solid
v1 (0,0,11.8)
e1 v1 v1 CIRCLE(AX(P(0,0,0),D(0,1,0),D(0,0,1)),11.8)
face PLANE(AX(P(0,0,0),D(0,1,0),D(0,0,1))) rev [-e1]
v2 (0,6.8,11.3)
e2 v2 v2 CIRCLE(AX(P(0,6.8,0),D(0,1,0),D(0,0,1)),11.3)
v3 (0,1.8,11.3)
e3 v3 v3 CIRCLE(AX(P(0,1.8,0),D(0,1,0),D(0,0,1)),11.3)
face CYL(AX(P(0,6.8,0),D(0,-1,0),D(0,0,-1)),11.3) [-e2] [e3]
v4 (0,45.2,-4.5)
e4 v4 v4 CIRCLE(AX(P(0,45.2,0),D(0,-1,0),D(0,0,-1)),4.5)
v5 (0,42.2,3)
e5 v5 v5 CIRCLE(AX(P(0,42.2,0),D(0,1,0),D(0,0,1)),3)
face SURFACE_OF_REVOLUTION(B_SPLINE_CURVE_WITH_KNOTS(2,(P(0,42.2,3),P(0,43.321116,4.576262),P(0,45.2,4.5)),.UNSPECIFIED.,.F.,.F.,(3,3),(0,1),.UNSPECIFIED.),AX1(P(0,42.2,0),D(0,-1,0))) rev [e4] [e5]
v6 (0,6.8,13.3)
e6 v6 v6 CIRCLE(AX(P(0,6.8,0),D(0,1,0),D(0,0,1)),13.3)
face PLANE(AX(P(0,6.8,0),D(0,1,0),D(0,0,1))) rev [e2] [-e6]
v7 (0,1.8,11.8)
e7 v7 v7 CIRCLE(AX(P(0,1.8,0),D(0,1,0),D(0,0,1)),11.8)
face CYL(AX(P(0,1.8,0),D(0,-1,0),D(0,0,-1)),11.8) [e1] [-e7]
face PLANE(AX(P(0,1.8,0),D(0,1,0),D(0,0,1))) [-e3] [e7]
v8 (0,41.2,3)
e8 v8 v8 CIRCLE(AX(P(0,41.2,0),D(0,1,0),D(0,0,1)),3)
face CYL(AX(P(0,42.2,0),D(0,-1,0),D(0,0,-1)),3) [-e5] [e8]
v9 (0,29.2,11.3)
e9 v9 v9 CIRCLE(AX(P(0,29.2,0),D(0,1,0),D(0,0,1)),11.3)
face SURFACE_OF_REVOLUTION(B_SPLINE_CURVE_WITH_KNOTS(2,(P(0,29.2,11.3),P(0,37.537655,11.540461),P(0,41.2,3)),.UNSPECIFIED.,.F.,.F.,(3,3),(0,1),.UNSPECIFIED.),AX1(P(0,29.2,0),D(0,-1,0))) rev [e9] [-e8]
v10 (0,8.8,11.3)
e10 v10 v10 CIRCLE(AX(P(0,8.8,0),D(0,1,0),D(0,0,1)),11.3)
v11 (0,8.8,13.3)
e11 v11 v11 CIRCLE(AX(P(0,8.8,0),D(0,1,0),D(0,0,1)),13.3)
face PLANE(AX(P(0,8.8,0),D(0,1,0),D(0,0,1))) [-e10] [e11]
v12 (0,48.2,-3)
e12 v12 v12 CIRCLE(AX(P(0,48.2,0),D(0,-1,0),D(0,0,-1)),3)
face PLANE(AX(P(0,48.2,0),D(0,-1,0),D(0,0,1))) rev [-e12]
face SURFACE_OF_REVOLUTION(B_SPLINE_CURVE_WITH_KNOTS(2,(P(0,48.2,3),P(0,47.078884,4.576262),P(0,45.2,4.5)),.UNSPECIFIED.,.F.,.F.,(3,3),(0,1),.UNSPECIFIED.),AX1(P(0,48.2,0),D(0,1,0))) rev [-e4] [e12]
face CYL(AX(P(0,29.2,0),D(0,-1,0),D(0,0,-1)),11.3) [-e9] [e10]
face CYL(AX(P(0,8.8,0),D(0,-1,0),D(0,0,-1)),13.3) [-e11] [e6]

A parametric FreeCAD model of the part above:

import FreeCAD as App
import Part
import Sketcher
from FreeCAD import Vector
Q = App.Units.Quantity

doc = App.newDocument("Part")
body = doc.addObject("PartDesign::Body", "Body")

sketch1 = doc.addObject("Sketcher::SketchObject", "Sketch")
body.addObject(sketch1)
sketch1.AttachmentSupport = (doc.XZ_Plane, [""])
sketch1.MapMode = "FlatFace"
sketch1.addGeometry(Part.Circle(Vector(0, 0, 0), Vector(0, 0, 1), 11.8), False)
sketch1.addConstraint([
    Sketcher.Constraint("Coincident", 0, 3, -1, 1),
    Sketcher.Constraint("Diameter", 0, Q("23.6 mm")),
])
pad1 = doc.addObject("PartDesign::Pad", "Pad")
body.addObject(pad1)
pad1.Profile = sketch1
pad1.Length = 1.8
pad1.Reversed = True

sketch2 = doc.addObject("Sketcher::SketchObject", "Sketch001")
body.addObject(sketch2)
sketch2.AttachmentSupport = (doc.XZ_Plane, [""])
sketch2.MapMode = "FlatFace"
sketch2.AttachmentOffset = App.Placement(Vector(0, 0, -1.8), App.Rotation())
sketch2.addGeometry(Part.Circle(Vector(0, 0, 0), Vector(0, 0, 1), 11.3), False)
sketch2.addConstraint([
    Sketcher.Constraint("Coincident", 0, 3, -1, 1),
    Sketcher.Constraint("Diameter", 0, Q("22.6 mm")),
])
pad2 = doc.addObject("PartDesign::Pad", "Pad001")
body.addObject(pad2)
pad2.Profile = sketch2
pad2.Length = 5
pad2.Reversed = True

sketch3 = doc.addObject("Sketcher::SketchObject", "Sketch002")
body.addObject(sketch3)
sketch3.AttachmentSupport = (doc.XZ_Plane, [""])
sketch3.MapMode = "FlatFace"
sketch3.AttachmentOffset = App.Placement(Vector(0, 0, -6.8), App.Rotation())
sketch3.addGeometry(Part.Circle(Vector(0, 0, 0), Vector(0, 0, 1), 13.3), False)
sketch3.addConstraint([
    Sketcher.Constraint("Coincident", 0, 3, -1, 1),
    Sketcher.Constraint("Diameter", 0, Q("26.6 mm")),
])
pad3 = doc.addObject("PartDesign::Pad", "Pad002")
body.addObject(pad3)
pad3.Profile = sketch3
pad3.Length = 2
pad3.Reversed = True

sketch4 = doc.addObject("Sketcher::SketchObject", "Sketch003")
body.addObject(sketch4)
sketch4.AttachmentSupport = (doc.XZ_Plane, [""])
sketch4.MapMode = "FlatFace"
sketch4.AttachmentOffset = App.Placement(Vector(0, 0, -8.8), App.Rotation())
sketch4.addGeometry(Part.Circle(Vector(0, 0, 0), Vector(0, 0, 1), 11.3), False)
sketch4.addConstraint([
    Sketcher.Constraint("Coincident", 0, 3, -1, 1),
    Sketcher.Constraint("Diameter", 0, Q("22.6 mm")),
])
pad4 = doc.addObject("PartDesign::Pad", "Pad003")
body.addObject(pad4)
pad4.Profile = sketch4
pad4.Length = 20.4
pad4.Reversed = True

sketch5 = doc.addObject("Sketcher::SketchObject", "Sketch004")
body.addObject(sketch5)
sketch5.AttachmentSupport = (doc.YZ_Plane, [""])
sketch5.MapMode = "FlatFace"
sketch5.addGeometry([
    Part.BSplineCurve([Vector(34.2, 10.5, 0), Vector(38.747924, 8.718156, 0), Vector(41.2, 3, 0)], [3, 3], [0.330462847, 1], False, 2, [1, 1, 1], False),
    Part.BSplineCurve([Vector(29.2, 11.3, 0), Vector(31.955285, 11.379463, 0), Vector(34.2, 10.5, 0)], [3, 3], [0, 0.330462847], False, 2, [1, 1, 1], False),
    Part.LineSegment(Vector(29.2, 11.3, 0), Vector(29.2, 0, 0)),
    Part.LineSegment(Vector(29.2, 0, 0), Vector(41.2, 0, 0)),
    Part.LineSegment(Vector(41.2, 0, 0), Vector(41.2, 3, 0)),
], False)
sketch5.addConstraint([
    Sketcher.Constraint("Block", 0),
    Sketcher.Constraint("Block", 1),
    Sketcher.Constraint("Coincident", 1, 1, 2, 1),
    Sketcher.Constraint("Coincident", 2, 2, 3, 1),
    Sketcher.Constraint("Coincident", 3, 2, 4, 1),
    Sketcher.Constraint("Coincident", 4, 2, 0, 2),
    Sketcher.Constraint("Vertical", 2),
    Sketcher.Constraint("Horizontal", 3),
    Sketcher.Constraint("Vertical", 4),
    Sketcher.Constraint("PointOnObject", 2, 2, -1),
])
revolution = doc.addObject("PartDesign::Revolution", "Revolution")
body.addObject(revolution)
revolution.Profile = sketch5
revolution.ReferenceAxis = (sketch5, ["H_Axis"])
revolution.Angle = 360

sketch6 = doc.addObject("Sketcher::SketchObject", "Sketch005")
body.addObject(sketch6)
sketch6.AttachmentSupport = (doc.XZ_Plane, [""])
sketch6.MapMode = "FlatFace"
sketch6.AttachmentOffset = App.Placement(Vector(0, 0, -41.2), App.Rotation())
sketch6.addGeometry(Part.Circle(Vector(0, 0, 0), Vector(0, 0, 1), 3), False)
sketch6.addConstraint([
    Sketcher.Constraint("Coincident", 0, 3, -1, 1),
    Sketcher.Constraint("Diameter", 0, Q("6 mm")),
])
pad5 = doc.addObject("PartDesign::Pad", "Pad004")
body.addObject(pad5)
pad5.Profile = sketch6
pad5.Length = 1
pad5.Reversed = True

sketch7 = doc.addObject("Sketcher::SketchObject", "Sketch006")
body.addObject(sketch7)
sketch7.AttachmentSupport = (doc.YZ_Plane, [""])
sketch7.MapMode = "FlatFace"
sketch7.addGeometry([
    Part.LineSegment(Vector(45.2, 0, 0), Vector(45.2, 4.5, 0)),
    Part.BSplineCurve([Vector(43.7, 4.25, 0), Vector(44.37737, 4.53339, 0), Vector(45.2, 4.5, 0)], [3, 3], [0.56217108, 1], False, 2, [1, 1, 1], False),
    Part.BSplineCurve([Vector(42.2, 3, 0), Vector(42.830259, 3.886129, 0), Vector(43.7, 4.25, 0)], [3, 3], [0, 0.56217108], False, 2, [1, 1, 1], False),
    Part.LineSegment(Vector(42.2, 3, 0), Vector(42.2, 0, 0)),
    Part.LineSegment(Vector(42.2, 0, 0), Vector(45.2, 0, 0)),
], False)
sketch7.addConstraint([
    Sketcher.Constraint("Block", 1),
    Sketcher.Constraint("Block", 2),
    Sketcher.Constraint("Coincident", 0, 2, 1, 2),
    Sketcher.Constraint("Coincident", 2, 1, 3, 1),
    Sketcher.Constraint("Coincident", 3, 2, 4, 1),
    Sketcher.Constraint("Coincident", 4, 2, 0, 1),
    Sketcher.Constraint("Vertical", 0),
    Sketcher.Constraint("Vertical", 3),
    Sketcher.Constraint("Horizontal", 4),
    Sketcher.Constraint("PointOnObject", 3, 2, -1),
])
revolution2 = doc.addObject("PartDesign::Revolution", "Revolution001")
body.addObject(revolution2)
revolution2.Profile = sketch7
revolution2.ReferenceAxis = (sketch7, ["H_Axis"])
revolution2.Angle = 360
doc.recompute()

datumplane = doc.addObject("PartDesign::Plane", "DatumPlane")
body.addObject(datumplane)
datumplane.AttachmentSupport = (doc.XZ_Plane, [""])
datumplane.MapMode = "FlatFace"
datumplane.AttachmentOffset = App.Placement(Vector(0, 0, -45.2), App.Rotation())
mirrored = doc.addObject("PartDesign::Mirrored", "Mirrored")
body.addObject(mirrored)
mirrored.Originals = [revolution2]
mirrored.MirrorPlane = (datumplane, [""])
body.Tip = mirrored

doc.recompute()
